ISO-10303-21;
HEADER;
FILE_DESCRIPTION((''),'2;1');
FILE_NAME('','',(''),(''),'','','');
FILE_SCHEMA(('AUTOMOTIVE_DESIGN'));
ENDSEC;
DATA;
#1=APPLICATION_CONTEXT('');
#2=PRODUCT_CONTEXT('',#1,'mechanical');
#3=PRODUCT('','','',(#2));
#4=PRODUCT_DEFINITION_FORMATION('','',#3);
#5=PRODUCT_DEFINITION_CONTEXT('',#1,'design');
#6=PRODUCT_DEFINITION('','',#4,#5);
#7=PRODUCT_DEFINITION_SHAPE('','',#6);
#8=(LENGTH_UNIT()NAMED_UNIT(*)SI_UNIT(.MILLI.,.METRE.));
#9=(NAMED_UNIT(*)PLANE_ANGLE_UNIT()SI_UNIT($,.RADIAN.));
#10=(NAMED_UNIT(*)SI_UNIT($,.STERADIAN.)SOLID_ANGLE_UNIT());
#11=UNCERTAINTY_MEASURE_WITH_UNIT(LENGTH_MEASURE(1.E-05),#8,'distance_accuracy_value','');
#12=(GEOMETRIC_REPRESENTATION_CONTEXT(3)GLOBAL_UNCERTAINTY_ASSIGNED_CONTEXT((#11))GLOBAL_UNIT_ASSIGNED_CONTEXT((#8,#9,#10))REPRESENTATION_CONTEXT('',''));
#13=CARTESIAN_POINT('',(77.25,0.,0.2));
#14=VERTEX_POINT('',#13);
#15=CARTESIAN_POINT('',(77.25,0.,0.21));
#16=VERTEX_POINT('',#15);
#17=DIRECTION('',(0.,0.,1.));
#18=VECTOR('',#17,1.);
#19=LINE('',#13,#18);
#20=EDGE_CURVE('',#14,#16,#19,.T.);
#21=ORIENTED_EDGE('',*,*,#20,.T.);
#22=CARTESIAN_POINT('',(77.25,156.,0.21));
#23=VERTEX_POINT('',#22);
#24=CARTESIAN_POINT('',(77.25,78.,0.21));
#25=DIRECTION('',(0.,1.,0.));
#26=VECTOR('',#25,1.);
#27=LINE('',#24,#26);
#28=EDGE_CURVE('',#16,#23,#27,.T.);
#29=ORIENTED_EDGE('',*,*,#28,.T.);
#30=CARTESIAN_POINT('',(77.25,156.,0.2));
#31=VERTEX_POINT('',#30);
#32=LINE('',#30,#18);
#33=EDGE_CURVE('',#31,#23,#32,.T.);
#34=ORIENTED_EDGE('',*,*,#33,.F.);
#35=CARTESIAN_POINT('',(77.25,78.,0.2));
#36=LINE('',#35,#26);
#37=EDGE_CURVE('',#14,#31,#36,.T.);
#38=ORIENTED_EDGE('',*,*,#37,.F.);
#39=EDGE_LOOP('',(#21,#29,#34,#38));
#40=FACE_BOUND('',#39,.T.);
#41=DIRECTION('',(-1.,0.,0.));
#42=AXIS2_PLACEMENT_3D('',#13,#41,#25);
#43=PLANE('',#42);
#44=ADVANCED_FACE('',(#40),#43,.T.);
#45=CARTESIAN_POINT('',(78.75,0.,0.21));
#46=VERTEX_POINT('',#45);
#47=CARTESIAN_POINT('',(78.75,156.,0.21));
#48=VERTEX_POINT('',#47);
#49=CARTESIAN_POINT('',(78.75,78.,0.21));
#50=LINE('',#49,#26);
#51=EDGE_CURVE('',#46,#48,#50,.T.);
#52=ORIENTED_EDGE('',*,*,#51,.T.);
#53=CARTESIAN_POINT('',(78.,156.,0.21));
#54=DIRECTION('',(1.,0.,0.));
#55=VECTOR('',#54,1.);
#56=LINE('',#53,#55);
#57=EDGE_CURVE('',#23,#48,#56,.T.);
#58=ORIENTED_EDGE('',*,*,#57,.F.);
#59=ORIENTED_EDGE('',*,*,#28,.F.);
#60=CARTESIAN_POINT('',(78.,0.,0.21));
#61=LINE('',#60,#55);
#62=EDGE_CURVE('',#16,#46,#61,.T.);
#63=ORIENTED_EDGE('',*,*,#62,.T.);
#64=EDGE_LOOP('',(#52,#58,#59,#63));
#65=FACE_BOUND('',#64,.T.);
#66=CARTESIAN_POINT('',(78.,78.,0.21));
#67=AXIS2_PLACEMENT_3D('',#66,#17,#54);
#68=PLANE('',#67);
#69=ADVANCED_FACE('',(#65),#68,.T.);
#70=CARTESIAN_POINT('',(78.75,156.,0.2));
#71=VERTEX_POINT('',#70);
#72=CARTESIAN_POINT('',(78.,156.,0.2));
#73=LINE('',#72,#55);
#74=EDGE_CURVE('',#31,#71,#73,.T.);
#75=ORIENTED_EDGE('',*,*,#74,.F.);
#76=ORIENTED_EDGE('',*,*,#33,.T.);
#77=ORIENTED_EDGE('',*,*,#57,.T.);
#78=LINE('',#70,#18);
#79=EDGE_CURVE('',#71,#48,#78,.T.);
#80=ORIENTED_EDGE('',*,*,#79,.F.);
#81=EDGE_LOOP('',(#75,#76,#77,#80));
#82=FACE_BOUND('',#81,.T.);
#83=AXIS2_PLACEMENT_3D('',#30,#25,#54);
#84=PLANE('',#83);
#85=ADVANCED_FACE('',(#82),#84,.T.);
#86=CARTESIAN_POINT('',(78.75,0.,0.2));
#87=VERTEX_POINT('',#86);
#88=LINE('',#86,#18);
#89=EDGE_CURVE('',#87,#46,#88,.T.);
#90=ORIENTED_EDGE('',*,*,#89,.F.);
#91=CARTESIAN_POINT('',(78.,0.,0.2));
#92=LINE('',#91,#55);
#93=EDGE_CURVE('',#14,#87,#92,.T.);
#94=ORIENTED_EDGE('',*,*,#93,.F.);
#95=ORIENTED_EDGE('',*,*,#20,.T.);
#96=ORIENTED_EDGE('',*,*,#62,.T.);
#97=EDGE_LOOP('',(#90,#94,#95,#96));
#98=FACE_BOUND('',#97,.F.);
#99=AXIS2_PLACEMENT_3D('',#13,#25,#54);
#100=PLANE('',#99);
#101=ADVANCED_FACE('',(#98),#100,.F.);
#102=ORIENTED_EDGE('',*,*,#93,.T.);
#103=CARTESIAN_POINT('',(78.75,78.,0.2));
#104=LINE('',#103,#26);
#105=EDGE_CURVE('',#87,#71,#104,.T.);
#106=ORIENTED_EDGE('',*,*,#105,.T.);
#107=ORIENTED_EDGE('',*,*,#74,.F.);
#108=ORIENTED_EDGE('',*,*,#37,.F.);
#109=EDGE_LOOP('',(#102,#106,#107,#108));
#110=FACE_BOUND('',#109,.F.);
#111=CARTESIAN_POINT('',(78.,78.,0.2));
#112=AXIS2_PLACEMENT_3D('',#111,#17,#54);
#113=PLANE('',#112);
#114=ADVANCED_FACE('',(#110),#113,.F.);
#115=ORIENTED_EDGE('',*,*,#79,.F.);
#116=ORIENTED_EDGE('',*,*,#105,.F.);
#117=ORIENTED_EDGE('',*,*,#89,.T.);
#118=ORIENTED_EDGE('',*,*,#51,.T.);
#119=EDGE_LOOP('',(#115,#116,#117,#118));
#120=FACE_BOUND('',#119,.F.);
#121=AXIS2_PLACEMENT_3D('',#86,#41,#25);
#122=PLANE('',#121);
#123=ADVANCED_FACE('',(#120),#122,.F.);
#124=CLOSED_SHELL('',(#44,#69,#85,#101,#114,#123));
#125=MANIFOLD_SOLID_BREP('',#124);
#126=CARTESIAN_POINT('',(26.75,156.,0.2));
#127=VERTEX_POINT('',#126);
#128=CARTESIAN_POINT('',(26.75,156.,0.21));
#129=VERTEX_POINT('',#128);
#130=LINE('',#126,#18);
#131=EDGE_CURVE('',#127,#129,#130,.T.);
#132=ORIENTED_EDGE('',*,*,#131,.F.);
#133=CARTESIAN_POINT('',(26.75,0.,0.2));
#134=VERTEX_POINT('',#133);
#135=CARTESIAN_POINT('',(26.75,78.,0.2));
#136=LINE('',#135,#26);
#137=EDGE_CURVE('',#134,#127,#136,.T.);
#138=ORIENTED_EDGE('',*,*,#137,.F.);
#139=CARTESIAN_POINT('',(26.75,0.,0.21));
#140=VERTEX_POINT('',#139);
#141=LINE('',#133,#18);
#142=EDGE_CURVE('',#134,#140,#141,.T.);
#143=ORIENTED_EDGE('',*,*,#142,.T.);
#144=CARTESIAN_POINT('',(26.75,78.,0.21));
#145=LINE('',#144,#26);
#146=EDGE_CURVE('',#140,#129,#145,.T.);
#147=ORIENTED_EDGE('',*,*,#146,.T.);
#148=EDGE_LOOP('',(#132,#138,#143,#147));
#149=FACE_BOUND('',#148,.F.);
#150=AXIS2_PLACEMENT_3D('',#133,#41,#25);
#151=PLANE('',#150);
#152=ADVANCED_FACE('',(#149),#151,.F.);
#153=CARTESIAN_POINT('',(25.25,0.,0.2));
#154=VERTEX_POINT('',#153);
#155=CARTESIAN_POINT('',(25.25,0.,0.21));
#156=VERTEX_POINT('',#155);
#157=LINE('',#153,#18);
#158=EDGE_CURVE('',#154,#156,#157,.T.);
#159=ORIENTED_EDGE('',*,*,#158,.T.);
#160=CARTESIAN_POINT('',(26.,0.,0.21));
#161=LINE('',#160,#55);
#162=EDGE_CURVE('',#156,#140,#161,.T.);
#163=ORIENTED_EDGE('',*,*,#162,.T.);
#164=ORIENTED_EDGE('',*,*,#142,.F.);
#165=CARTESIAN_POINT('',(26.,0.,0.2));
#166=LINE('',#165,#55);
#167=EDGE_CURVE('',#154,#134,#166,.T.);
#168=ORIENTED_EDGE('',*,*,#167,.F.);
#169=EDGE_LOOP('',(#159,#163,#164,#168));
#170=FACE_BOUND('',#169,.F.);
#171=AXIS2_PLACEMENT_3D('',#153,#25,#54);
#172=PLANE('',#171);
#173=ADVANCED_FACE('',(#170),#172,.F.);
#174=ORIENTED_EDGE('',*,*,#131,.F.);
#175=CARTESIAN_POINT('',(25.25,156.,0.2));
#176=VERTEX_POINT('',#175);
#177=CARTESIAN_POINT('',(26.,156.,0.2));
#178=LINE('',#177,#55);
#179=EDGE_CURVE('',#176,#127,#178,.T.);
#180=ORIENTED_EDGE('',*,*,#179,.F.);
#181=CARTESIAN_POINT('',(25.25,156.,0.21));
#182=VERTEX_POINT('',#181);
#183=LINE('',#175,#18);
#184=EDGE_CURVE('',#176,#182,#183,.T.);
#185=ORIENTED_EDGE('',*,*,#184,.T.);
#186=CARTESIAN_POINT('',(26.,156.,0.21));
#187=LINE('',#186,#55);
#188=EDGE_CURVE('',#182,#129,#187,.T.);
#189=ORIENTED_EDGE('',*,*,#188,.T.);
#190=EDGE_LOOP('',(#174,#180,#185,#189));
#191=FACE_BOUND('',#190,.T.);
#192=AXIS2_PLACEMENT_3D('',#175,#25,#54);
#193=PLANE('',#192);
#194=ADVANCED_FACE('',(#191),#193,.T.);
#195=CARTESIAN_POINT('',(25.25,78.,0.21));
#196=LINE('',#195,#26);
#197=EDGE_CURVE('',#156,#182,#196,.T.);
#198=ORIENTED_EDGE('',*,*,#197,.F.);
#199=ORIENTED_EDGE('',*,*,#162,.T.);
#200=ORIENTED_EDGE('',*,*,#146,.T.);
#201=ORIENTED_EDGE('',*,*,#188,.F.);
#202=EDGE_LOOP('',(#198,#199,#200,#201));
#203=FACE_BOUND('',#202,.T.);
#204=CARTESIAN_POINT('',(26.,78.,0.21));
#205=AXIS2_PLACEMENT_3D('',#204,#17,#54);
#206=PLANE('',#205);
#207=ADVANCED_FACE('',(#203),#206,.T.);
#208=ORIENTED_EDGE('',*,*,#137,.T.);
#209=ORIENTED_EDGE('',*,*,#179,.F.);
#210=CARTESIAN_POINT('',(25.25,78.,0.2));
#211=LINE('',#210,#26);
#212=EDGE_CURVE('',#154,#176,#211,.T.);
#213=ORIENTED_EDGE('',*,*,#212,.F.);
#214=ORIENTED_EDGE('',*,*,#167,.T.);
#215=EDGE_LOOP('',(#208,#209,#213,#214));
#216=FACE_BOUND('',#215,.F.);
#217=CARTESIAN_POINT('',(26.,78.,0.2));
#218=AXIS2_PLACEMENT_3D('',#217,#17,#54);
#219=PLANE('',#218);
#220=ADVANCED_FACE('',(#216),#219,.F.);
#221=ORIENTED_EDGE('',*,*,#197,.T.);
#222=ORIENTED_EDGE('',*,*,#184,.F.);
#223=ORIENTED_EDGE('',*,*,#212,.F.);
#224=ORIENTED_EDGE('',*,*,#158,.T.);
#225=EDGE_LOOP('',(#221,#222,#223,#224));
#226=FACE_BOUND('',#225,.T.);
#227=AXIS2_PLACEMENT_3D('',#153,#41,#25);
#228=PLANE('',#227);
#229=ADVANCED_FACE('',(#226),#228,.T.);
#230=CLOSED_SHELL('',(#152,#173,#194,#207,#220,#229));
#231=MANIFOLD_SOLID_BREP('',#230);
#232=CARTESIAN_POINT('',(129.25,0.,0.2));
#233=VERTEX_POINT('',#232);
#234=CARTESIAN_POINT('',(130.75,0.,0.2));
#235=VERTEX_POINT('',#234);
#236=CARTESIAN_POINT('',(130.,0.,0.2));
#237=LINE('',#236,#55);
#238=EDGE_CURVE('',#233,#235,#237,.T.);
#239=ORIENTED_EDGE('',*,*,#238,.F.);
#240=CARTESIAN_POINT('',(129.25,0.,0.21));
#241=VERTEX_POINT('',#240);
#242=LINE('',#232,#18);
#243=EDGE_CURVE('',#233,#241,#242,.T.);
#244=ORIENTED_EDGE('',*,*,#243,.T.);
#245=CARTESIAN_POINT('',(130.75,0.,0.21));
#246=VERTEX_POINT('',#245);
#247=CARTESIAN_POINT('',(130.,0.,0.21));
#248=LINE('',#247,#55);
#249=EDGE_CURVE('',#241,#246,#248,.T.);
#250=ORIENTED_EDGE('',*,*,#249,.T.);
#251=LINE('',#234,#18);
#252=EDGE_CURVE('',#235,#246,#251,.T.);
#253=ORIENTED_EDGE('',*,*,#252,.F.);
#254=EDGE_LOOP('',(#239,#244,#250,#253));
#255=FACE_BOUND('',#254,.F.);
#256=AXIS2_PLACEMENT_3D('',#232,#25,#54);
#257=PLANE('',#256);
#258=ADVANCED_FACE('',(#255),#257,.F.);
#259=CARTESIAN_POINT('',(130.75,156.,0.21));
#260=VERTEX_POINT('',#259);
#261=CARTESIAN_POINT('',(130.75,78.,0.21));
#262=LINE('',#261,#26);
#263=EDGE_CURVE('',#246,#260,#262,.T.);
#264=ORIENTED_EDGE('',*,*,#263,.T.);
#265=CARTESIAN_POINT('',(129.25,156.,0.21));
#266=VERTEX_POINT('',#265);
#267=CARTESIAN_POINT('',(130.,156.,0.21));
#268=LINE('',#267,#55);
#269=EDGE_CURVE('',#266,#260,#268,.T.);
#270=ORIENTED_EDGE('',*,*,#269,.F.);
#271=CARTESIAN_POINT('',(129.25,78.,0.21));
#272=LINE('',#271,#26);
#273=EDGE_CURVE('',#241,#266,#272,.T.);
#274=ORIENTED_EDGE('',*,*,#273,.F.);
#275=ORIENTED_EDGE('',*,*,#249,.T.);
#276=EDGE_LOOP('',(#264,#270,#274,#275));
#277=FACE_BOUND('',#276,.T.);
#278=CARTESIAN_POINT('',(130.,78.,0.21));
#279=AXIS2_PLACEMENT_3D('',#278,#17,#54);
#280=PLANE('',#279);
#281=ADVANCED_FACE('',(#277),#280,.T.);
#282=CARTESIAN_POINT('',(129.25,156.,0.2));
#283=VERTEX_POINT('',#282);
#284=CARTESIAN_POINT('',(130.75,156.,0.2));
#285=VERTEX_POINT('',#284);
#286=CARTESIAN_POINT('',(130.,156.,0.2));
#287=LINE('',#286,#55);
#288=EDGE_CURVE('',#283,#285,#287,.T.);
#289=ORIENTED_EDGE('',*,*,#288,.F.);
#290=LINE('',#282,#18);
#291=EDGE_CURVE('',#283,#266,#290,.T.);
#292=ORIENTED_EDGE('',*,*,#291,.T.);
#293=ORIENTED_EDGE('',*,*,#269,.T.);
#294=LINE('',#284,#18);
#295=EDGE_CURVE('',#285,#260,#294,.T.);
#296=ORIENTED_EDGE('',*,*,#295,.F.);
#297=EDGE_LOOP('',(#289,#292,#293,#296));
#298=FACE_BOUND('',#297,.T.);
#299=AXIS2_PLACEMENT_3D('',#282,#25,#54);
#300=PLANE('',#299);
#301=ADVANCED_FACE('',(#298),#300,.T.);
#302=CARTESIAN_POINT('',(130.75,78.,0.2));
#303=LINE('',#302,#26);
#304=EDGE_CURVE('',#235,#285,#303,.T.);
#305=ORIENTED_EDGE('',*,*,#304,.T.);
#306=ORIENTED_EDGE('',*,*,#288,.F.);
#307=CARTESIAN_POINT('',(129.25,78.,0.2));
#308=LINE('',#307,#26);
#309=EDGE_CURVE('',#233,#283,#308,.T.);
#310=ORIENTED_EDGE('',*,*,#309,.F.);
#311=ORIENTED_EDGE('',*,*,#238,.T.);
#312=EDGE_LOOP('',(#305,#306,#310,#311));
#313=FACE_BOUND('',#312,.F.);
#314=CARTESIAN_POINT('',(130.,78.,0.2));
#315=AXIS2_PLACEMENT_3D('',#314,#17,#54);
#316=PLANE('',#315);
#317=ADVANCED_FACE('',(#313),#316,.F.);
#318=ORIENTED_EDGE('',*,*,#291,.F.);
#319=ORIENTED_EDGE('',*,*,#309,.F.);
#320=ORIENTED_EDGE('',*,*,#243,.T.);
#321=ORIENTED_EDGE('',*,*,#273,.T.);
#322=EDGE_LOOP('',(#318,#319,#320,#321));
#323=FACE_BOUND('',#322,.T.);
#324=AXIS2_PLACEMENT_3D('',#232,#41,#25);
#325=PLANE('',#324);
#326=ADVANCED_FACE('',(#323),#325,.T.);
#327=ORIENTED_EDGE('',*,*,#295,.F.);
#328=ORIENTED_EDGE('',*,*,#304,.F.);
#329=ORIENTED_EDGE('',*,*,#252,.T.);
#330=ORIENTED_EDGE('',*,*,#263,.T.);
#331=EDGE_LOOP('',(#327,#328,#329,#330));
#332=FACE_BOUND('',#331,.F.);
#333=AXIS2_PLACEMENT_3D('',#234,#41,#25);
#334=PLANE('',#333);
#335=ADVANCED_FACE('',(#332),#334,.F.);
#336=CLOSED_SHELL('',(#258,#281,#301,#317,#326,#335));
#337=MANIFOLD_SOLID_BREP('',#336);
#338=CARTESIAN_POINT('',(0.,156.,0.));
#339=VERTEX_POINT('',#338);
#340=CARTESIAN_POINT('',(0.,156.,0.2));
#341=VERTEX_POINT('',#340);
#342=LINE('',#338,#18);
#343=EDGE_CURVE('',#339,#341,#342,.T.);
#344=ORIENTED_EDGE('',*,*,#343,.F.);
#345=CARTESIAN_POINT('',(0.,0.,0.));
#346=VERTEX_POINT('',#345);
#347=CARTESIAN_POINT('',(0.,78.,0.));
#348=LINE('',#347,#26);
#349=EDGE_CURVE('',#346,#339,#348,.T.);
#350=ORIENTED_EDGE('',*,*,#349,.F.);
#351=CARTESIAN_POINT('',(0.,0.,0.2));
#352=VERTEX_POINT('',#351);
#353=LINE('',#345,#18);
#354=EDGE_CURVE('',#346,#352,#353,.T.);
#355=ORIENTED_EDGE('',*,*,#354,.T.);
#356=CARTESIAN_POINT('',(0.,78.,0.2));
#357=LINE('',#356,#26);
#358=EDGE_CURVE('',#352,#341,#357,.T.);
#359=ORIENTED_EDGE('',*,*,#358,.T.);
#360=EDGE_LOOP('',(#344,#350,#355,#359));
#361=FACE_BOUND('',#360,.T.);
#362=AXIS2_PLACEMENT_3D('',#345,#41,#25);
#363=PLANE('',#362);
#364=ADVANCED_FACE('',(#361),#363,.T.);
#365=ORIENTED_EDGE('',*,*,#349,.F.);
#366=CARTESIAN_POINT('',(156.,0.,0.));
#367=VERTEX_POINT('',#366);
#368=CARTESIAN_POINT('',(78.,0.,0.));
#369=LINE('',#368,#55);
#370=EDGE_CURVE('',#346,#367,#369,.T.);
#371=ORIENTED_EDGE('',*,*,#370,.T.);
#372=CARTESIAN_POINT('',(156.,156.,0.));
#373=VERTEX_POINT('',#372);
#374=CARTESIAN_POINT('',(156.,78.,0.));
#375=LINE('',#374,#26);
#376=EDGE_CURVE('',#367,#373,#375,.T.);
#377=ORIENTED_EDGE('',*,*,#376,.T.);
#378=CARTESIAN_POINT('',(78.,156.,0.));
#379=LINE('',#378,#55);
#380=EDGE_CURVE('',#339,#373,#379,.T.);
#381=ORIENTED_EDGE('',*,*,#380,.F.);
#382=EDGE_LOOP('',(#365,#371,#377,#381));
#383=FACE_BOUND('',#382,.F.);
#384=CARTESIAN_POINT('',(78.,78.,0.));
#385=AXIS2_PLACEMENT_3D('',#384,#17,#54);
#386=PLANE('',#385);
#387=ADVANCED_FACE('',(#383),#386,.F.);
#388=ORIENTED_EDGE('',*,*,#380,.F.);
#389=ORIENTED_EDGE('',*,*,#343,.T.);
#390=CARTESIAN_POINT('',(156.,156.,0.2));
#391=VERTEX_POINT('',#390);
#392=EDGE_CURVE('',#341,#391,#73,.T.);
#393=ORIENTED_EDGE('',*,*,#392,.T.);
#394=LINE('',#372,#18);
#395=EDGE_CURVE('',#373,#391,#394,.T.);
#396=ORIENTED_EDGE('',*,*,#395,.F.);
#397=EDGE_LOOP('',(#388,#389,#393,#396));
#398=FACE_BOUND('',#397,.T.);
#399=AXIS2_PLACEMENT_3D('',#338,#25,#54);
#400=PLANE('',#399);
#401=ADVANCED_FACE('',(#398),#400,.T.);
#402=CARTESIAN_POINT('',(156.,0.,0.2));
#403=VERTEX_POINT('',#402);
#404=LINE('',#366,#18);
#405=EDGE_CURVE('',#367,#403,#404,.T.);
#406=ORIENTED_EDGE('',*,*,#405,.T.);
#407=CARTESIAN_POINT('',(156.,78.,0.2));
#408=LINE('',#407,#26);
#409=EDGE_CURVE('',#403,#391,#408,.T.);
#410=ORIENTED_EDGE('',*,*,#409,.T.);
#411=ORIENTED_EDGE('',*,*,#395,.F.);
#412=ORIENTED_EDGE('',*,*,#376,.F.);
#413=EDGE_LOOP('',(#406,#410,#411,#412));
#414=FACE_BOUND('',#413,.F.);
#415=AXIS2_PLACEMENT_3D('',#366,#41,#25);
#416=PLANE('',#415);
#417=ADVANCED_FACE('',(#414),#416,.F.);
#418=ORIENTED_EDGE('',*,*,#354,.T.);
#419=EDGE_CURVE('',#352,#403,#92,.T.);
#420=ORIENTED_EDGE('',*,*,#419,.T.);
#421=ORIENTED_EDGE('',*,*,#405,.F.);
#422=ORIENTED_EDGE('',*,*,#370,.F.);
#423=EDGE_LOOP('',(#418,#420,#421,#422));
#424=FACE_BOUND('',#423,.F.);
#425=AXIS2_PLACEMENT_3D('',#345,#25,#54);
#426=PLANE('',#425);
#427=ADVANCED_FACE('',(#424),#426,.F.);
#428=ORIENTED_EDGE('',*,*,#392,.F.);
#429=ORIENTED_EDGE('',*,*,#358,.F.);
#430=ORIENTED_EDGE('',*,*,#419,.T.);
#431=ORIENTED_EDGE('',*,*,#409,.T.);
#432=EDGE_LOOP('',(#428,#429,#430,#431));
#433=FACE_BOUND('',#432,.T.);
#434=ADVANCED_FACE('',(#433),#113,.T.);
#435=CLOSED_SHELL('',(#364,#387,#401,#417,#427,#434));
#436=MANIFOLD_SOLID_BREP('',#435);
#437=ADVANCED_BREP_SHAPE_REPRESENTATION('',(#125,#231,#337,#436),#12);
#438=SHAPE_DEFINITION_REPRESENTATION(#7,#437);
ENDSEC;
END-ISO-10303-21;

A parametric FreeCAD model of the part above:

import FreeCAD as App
import Part
import Sketcher
from FreeCAD import Vector
Q = App.Units.Quantity

doc = App.newDocument("Part")
body = doc.addObject("PartDesign::Body", "Body")

# Sketch on XY plane
sketch1 = body.newObject("Sketcher::SketchObject", "Sketch")
sketch1.AttachmentSupport = (doc.getObject("XY_Plane"), [""])
sketch1.MapMode = "FlatFace"
sketch1.addGeometry([
    Part.LineSegment(Vector(0, 156, 0), Vector(0, 0, 0)),
    Part.LineSegment(Vector(0, 0, 0), Vector(156, 0, 0)),
    Part.LineSegment(Vector(156, 0, 0), Vector(156, 156, 0)),
    Part.LineSegment(Vector(156, 156, 0), Vector(0, 156, 0)),
], False)
sketch1.addConstraint([
    Sketcher.Constraint("Coincident", 0, 2, 1, 1),
    Sketcher.Constraint("Coincident", 1, 2, 2, 1),
    Sketcher.Constraint("Coincident", 2, 2, 3, 1),
    Sketcher.Constraint("Coincident", 3, 2, 0, 1),
    Sketcher.Constraint("Vertical", 0),
    Sketcher.Constraint("Horizontal", 1),
    Sketcher.Constraint("Vertical", 2),
    Sketcher.Constraint("Horizontal", 3),
    Sketcher.Constraint("Coincident", 0, 2, -1, 1),
    Sketcher.Constraint("Equal", 3, 0),
    Sketcher.Constraint("DistanceX", 1, 1, 1, 2, Q("156 mm")),
])
pad1 = body.newObject("PartDesign::Pad", "Pad")
pad1.Profile = sketch1
pad1.Length = 0.2
body2 = doc.addObject("PartDesign::Body", "Body001")
body2.AllowCompound = True

# Sketch on XY plane
sketch2 = body2.newObject("Sketcher::SketchObject", "Sketch001")
sketch2.AttachmentSupport = (doc.getObject("XY_Plane001"), [""])
sketch2.MapMode = "FlatFace"
sketch2.AttachmentOffset = App.Placement(Vector(0, 0, 0.2), App.Rotation())
sketch2.addGeometry([
    Part.LineSegment(Vector(25.25, 156, 0), Vector(25.25, 0, 0)),  # 0
    Part.LineSegment(Vector(25.25, 0, 0), Vector(26.75, 0, 0)),  # 1
    Part.LineSegment(Vector(26.75, 0, 0), Vector(26.75, 156, 0)),  # 2
    Part.LineSegment(Vector(26.75, 156, 0), Vector(25.25, 156, 0)),  # 3
    Part.LineSegment(Vector(77.25, 156, 0), Vector(77.25, 0, 0)),  # 4
    Part.LineSegment(Vector(77.25, 0, 0), Vector(78.75, 0, 0)),  # 5
    Part.LineSegment(Vector(78.75, 0, 0), Vector(78.75, 156, 0)),  # 6
    Part.LineSegment(Vector(78.75, 156, 0), Vector(77.25, 156, 0)),  # 7
    Part.LineSegment(Vector(129.25, 156, 0), Vector(129.25, 0, 0)),  # 8
    Part.LineSegment(Vector(129.25, 0, 0), Vector(130.75, 0, 0)),  # 9
    Part.LineSegment(Vector(130.75, 0, 0), Vector(130.75, 156, 0)),  # 10
    Part.LineSegment(Vector(130.75, 156, 0), Vector(129.25, 156, 0)),  # 11
], False)
sketch2.addConstraint([
    Sketcher.Constraint("Coincident", 0, 2, 1, 1),
    Sketcher.Constraint("Coincident", 1, 2, 2, 1),
    Sketcher.Constraint("Coincident", 2, 2, 3, 1),
    Sketcher.Constraint("Coincident", 3, 2, 0, 1),
    Sketcher.Constraint("Coincident", 4, 2, 5, 1),
    Sketcher.Constraint("Coincident", 5, 2, 6, 1),
    Sketcher.Constraint("Coincident", 6, 2, 7, 1),
    Sketcher.Constraint("Coincident", 7, 2, 4, 1),
    Sketcher.Constraint("Coincident", 8, 2, 9, 1),
    Sketcher.Constraint("Coincident", 9, 2, 10, 1),
    Sketcher.Constraint("Coincident", 10, 2, 11, 1),
    Sketcher.Constraint("Coincident", 11, 2, 8, 1),
    Sketcher.Constraint("Vertical", 0),
    Sketcher.Constraint("Horizontal", 1),
    Sketcher.Constraint("Vertical", 2),
    Sketcher.Constraint("Horizontal", 3),
    Sketcher.Constraint("Vertical", 4),
    Sketcher.Constraint("Horizontal", 5),
    Sketcher.Constraint("Vertical", 6),
    Sketcher.Constraint("Horizontal", 7),
    Sketcher.Constraint("Vertical", 8),
    Sketcher.Constraint("Horizontal", 9),
    Sketcher.Constraint("Vertical", 10),
    Sketcher.Constraint("Horizontal", 11),
    Sketcher.Constraint("PointOnObject", 0, 2, -1),
    Sketcher.Constraint("PointOnObject", 4, 2, -1),
    Sketcher.Constraint("PointOnObject", 8, 2, -1),
    Sketcher.Constraint("Horizontal", 3, 2, 6, 2),
    Sketcher.Constraint("Horizontal", 7, 2, 10, 2),
    Sketcher.Constraint("Equal", 3, 5),
    Sketcher.Constraint("Equal", 7, 9),
    Sketcher.Constraint("DistanceY", 0, 2, 0, 1, Q("156 mm")),
    Sketcher.Constraint("DistanceX", 1, 1, 1, 2, Q("1.5 mm")),
    Sketcher.Constraint("DistanceX", 0, 2, 4, 2, Q("52 mm")),
    Sketcher.Constraint("DistanceX", 4, 2, 8, 2, Q("52 mm")),
    Sketcher.Constraint("DistanceX", -1, 1, 0, 2, Q("25.25 mm")),
])
pad2 = body2.newObject("PartDesign::Pad", "Pad001")
pad2.Profile = sketch2
pad2.Length = 0.01

doc.recompute()
